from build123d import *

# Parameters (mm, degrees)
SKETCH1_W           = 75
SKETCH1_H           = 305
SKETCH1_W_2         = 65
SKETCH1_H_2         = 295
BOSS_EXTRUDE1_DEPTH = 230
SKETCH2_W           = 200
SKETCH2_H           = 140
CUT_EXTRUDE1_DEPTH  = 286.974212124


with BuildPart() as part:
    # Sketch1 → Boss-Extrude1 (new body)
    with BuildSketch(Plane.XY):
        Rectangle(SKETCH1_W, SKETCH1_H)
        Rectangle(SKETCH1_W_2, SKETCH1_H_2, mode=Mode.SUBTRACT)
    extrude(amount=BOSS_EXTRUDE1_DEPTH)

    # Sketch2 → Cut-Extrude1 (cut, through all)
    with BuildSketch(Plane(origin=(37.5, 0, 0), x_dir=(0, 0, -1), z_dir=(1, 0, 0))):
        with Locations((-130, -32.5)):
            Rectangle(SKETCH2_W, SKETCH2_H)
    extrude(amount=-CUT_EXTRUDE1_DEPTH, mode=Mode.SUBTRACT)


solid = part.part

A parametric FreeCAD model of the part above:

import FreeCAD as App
import Part
import Sketcher
from FreeCAD import Vector

doc = App.newDocument("Part")
body = doc.addObject("PartDesign::Body", "Body")

sketch1 = doc.addObject("Sketcher::SketchObject", "Sketch")
body.addObject(sketch1)
sketch1.AttachmentSupport = (doc.XY_Plane, [""])
sketch1.MapMode = "FlatFace"
sketch1.addGeometry(Part.LineSegment(Vector(-38, 152, 0), Vector(-38, -152, 0)), False)
sketch1.addGeometry(Part.LineSegment(Vector(-38, -152, 0), Vector(38, -152, 0)), False)
sketch1.addGeometry(Part.LineSegment(Vector(38, -152, 0), Vector(38, 152, 0)), False)
sketch1.addGeometry(Part.LineSegment(Vector(38, 152, 0), Vector(-38, 152, 0)), False)
sketch1.addGeometry(Part.LineSegment(Vector(32, -148, 0), Vector(-32, -148, 0)), False)
sketch1.addGeometry(Part.LineSegment(Vector(-32, -148, 0), Vector(-32, 148, 0)), False)
sketch1.addGeometry(Part.LineSegment(Vector(-32, 148, 0), Vector(32, 148, 0)), False)
sketch1.addGeometry(Part.LineSegment(Vector(32, 148, 0), Vector(32, -148, 0)), False)
sketch1.addConstraint(Sketcher.Constraint("Coincident", 0, 2, 1, 1))
sketch1.addConstraint(Sketcher.Constraint("Coincident", 1, 2, 2, 1))
sketch1.addConstraint(Sketcher.Constraint("Coincident", 2, 2, 3, 1))
sketch1.addConstraint(Sketcher.Constraint("Coincident", 3, 2, 0, 1))
sketch1.addConstraint(Sketcher.Constraint("Coincident", 4, 2, 5, 1))
sketch1.addConstraint(Sketcher.Constraint("Coincident", 5, 2, 6, 1))
sketch1.addConstraint(Sketcher.Constraint("Coincident", 6, 2, 7, 1))
sketch1.addConstraint(Sketcher.Constraint("Coincident", 7, 2, 4, 1))
sketch1.addConstraint(Sketcher.Constraint("Vertical", 0))
sketch1.addConstraint(Sketcher.Constraint("Horizontal", 1))
sketch1.addConstraint(Sketcher.Constraint("Vertical", 2))
sketch1.addConstraint(Sketcher.Constraint("Horizontal", 3))
sketch1.addConstraint(Sketcher.Constraint("Horizontal", 4))
sketch1.addConstraint(Sketcher.Constraint("Vertical", 5))
sketch1.addConstraint(Sketcher.Constraint("Horizontal", 6))
sketch1.addConstraint(Sketcher.Constraint("Vertical", 7))
sketch1.addConstraint(Sketcher.Constraint("Symmetric", 0, 2, 2, 2, -1, 1))
sketch1.addConstraint(Sketcher.Constraint("Symmetric", 4, 2, 6, 2, -1, 1))
sketch1.addConstraint(Sketcher.Constraint("DistanceX", 1, 1, 1, 2, 75.0))
sketch1.addConstraint(Sketcher.Constraint("DistanceX", 4, 2, 4, 1, 65.0))
sketch1.addConstraint(Sketcher.Constraint("DistanceY", 0, 2, 0, 1, 305.0))
sketch1.addConstraint(Sketcher.Constraint("DistanceY", 5, 1, 5, 2, 295.0))
pad1 = doc.addObject("PartDesign::Pad", "Pad")
body.addObject(pad1)
pad1.Profile = sketch1
pad1.Length = 230

sketch2 = doc.addObject("Sketcher::SketchObject", "Sketch001")
body.addObject(sketch2)
sketch2.AttachmentSupport = (doc.YZ_Plane, [""])
sketch2.MapMode = "FlatFace"
sketch2.AttachmentOffset = App.Placement(Vector(0, 0, 37.5), App.Rotation())
sketch2.addGeometry(Part.LineSegment(Vector(38, 230, 0), Vector(-102, 230, 0)), False)
sketch2.addGeometry(Part.LineSegment(Vector(-102, 230, 0), Vector(-102, 30, 0)), False)
sketch2.addGeometry(Part.LineSegment(Vector(-102, 30, 0), Vector(38, 30, 0)), False)
sketch2.addGeometry(Part.LineSegment(Vector(38, 30, 0), Vector(38, 230, 0)), False)
sketch2.addConstraint(Sketcher.Constraint("Coincident", 0, 2, 1, 1))
sketch2.addConstraint(Sketcher.Constraint("Coincident", 1, 2, 2, 1))
sketch2.addConstraint(Sketcher.Constraint("Coincident", 2, 2, 3, 1))
sketch2.addConstraint(Sketcher.Constraint("Coincident", 3, 2, 0, 1))
sketch2.addConstraint(Sketcher.Constraint("Horizontal", 0))
sketch2.addConstraint(Sketcher.Constraint("Vertical", 1))
sketch2.addConstraint(Sketcher.Constraint("Horizontal", 2))
sketch2.addConstraint(Sketcher.Constraint("Vertical", 3))
sketch2.addConstraint(Sketcher.Constraint("DistanceX", 0, 2, 0, 1, 140.0))
sketch2.addConstraint(Sketcher.Constraint("DistanceY", 1, 2, 1, 1, 200.0))
sketch2.addConstraint(Sketcher.Constraint("DistanceY", -1, 1, 0, 2, 230.0))
sketch2.addConstraint(Sketcher.Constraint("DistanceX", 0, 2, -1, 1, 102.5))
pocket1 = doc.addObject("PartDesign::Pocket", "Pocket")
body.addObject(pocket1)
pocket1.Profile = sketch2
pocket1.Type = "ThroughAll"

doc.recompute()
